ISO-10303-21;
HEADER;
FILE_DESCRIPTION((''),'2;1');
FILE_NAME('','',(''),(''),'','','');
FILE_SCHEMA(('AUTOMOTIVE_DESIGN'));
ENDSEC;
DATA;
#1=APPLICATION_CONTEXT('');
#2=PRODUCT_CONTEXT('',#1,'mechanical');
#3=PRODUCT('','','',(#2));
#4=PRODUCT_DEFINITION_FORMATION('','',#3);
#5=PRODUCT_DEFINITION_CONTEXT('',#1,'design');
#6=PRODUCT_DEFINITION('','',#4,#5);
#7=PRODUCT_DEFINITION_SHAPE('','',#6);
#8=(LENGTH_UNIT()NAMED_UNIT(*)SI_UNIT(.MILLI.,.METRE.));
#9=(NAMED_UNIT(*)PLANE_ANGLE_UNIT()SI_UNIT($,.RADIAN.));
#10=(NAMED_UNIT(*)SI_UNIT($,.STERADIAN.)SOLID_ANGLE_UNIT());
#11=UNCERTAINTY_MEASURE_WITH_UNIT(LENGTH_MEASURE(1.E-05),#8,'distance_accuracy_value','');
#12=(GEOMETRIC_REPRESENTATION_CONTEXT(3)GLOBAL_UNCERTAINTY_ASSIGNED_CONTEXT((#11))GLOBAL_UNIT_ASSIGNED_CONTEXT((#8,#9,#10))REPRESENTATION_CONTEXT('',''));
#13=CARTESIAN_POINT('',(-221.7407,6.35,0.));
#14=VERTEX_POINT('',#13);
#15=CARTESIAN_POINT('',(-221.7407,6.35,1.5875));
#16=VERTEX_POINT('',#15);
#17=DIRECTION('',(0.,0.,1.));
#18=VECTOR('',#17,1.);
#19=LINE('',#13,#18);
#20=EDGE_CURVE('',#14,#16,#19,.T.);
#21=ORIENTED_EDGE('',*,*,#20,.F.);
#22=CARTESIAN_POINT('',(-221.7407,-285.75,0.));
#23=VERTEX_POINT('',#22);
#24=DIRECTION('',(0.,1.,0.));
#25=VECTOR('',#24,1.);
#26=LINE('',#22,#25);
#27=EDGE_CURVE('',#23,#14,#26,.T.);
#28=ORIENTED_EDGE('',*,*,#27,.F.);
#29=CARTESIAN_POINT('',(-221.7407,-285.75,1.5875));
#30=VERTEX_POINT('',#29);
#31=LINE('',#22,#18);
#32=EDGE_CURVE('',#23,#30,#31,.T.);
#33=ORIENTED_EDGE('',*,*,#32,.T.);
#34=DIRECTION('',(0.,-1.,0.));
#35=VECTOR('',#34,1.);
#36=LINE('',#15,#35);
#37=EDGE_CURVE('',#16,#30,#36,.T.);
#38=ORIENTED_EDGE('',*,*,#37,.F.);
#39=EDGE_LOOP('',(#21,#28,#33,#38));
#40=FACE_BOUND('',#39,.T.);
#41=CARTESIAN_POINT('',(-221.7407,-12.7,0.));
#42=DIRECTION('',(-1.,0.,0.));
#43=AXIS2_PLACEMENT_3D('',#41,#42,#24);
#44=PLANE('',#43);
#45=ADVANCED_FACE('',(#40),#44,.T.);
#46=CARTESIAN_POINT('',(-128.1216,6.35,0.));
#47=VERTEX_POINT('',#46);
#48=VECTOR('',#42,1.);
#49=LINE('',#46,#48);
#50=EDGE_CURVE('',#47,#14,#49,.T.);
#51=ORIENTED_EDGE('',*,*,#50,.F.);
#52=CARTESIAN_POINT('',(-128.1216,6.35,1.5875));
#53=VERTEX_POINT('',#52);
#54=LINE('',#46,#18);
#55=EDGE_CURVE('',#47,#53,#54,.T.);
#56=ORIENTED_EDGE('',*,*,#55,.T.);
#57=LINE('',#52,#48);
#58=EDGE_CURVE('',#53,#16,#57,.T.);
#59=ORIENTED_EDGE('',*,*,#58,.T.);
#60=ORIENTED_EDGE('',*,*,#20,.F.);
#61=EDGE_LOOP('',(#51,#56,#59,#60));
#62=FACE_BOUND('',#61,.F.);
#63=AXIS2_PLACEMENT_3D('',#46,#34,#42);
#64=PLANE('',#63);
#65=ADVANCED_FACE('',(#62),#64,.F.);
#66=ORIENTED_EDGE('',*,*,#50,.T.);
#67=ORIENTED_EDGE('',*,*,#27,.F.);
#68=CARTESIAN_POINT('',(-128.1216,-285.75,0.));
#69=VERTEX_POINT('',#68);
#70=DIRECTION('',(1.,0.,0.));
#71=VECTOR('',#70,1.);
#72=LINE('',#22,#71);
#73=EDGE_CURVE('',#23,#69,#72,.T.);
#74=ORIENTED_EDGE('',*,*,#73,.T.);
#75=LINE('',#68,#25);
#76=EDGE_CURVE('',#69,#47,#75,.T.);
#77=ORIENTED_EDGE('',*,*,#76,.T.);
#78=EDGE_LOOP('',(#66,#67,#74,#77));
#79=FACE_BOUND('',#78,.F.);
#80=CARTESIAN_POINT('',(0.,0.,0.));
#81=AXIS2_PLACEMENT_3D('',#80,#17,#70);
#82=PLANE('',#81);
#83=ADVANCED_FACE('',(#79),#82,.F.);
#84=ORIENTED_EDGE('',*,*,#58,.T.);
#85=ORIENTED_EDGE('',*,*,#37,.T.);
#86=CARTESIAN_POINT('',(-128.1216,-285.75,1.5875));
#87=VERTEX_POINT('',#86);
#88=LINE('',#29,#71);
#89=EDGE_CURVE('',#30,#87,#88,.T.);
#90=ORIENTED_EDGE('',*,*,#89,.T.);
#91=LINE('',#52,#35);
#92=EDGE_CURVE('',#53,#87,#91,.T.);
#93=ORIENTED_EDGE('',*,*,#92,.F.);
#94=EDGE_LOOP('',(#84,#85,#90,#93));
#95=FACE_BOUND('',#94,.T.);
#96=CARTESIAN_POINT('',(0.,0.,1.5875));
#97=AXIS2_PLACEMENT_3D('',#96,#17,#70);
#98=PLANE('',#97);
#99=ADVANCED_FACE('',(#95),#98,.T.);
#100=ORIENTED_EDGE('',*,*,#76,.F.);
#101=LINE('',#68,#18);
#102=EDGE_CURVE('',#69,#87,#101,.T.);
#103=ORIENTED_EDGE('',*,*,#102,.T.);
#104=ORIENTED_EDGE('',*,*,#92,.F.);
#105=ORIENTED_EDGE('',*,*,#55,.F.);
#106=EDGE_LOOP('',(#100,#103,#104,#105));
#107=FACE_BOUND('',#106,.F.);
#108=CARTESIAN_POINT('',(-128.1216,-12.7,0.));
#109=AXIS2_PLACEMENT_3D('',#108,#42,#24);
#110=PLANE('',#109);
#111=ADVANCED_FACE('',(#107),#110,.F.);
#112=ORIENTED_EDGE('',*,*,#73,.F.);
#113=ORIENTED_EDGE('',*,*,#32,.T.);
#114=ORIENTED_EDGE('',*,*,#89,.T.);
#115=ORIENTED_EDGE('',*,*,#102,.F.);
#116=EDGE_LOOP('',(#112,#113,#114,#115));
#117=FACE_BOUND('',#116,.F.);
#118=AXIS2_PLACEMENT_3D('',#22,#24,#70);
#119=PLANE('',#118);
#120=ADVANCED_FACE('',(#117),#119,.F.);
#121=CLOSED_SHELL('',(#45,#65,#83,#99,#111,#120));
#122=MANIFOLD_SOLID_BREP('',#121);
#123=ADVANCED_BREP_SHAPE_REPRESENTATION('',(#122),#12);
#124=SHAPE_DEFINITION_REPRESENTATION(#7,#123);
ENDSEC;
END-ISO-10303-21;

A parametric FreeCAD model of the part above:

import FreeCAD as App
import Part
import Sketcher
from FreeCAD import Vector
Q = App.Units.Quantity

doc = App.newDocument("Part")
body = doc.addObject("PartDesign::Body", "Body")

sketch1 = body.newObject("Sketcher::SketchObject", "Sketch")
sketch1.AttachmentSupport = (doc.getObject("XY_Plane"), [""])
sketch1.MapMode = "FlatFace"
sketch1.addGeometry(Part.LineSegment(Vector(-128.1216, 6.35, 0), Vector(-221.7407, 6.35, 0)), False)
sketch1.addGeometry(Part.LineSegment(Vector(-221.7407, 6.35, 0), Vector(-221.7407, -285.75, 0)), False)
sketch1.addGeometry(Part.LineSegment(Vector(-221.7407, -285.75, 0), Vector(-128.1216, -285.75, 0)), False)
sketch1.addGeometry(Part.LineSegment(Vector(-128.1216, -285.75, 0), Vector(-128.1216, 6.35, 0)), False)
sketch1.addConstraint(Sketcher.Constraint("Coincident", 0, 2, 1, 1))
sketch1.addConstraint(Sketcher.Constraint("Coincident", 1, 2, 2, 1))
sketch1.addConstraint(Sketcher.Constraint("Coincident", 2, 2, 3, 1))
sketch1.addConstraint(Sketcher.Constraint("Coincident", 3, 2, 0, 1))
sketch1.addConstraint(Sketcher.Constraint("Horizontal", 0))
sketch1.addConstraint(Sketcher.Constraint("Vertical", 1))
sketch1.addConstraint(Sketcher.Constraint("Horizontal", 2))
sketch1.addConstraint(Sketcher.Constraint("Vertical", 3))
sketch1.addConstraint(Sketcher.Constraint("DistanceY", 1, 2, 1, 1, Q("11.5 in")))
sketch1.addConstraint(Sketcher.Constraint("DistanceY", -1, 1, 0, 2, Q("0.25 in")))
sketch1.addConstraint(Sketcher.Constraint("DistanceX", 0, 2, 0, 1, Q("3.6858 in")))
sketch1.addConstraint(Sketcher.Constraint("DistanceX", 0, 2, -1, 1, Q("221.7407 mm")))
pad1 = body.newObject("PartDesign::Pad", "Pad")
pad1.Profile = sketch1
pad1.Length = Q("0.0625 in")

doc.recompute()
